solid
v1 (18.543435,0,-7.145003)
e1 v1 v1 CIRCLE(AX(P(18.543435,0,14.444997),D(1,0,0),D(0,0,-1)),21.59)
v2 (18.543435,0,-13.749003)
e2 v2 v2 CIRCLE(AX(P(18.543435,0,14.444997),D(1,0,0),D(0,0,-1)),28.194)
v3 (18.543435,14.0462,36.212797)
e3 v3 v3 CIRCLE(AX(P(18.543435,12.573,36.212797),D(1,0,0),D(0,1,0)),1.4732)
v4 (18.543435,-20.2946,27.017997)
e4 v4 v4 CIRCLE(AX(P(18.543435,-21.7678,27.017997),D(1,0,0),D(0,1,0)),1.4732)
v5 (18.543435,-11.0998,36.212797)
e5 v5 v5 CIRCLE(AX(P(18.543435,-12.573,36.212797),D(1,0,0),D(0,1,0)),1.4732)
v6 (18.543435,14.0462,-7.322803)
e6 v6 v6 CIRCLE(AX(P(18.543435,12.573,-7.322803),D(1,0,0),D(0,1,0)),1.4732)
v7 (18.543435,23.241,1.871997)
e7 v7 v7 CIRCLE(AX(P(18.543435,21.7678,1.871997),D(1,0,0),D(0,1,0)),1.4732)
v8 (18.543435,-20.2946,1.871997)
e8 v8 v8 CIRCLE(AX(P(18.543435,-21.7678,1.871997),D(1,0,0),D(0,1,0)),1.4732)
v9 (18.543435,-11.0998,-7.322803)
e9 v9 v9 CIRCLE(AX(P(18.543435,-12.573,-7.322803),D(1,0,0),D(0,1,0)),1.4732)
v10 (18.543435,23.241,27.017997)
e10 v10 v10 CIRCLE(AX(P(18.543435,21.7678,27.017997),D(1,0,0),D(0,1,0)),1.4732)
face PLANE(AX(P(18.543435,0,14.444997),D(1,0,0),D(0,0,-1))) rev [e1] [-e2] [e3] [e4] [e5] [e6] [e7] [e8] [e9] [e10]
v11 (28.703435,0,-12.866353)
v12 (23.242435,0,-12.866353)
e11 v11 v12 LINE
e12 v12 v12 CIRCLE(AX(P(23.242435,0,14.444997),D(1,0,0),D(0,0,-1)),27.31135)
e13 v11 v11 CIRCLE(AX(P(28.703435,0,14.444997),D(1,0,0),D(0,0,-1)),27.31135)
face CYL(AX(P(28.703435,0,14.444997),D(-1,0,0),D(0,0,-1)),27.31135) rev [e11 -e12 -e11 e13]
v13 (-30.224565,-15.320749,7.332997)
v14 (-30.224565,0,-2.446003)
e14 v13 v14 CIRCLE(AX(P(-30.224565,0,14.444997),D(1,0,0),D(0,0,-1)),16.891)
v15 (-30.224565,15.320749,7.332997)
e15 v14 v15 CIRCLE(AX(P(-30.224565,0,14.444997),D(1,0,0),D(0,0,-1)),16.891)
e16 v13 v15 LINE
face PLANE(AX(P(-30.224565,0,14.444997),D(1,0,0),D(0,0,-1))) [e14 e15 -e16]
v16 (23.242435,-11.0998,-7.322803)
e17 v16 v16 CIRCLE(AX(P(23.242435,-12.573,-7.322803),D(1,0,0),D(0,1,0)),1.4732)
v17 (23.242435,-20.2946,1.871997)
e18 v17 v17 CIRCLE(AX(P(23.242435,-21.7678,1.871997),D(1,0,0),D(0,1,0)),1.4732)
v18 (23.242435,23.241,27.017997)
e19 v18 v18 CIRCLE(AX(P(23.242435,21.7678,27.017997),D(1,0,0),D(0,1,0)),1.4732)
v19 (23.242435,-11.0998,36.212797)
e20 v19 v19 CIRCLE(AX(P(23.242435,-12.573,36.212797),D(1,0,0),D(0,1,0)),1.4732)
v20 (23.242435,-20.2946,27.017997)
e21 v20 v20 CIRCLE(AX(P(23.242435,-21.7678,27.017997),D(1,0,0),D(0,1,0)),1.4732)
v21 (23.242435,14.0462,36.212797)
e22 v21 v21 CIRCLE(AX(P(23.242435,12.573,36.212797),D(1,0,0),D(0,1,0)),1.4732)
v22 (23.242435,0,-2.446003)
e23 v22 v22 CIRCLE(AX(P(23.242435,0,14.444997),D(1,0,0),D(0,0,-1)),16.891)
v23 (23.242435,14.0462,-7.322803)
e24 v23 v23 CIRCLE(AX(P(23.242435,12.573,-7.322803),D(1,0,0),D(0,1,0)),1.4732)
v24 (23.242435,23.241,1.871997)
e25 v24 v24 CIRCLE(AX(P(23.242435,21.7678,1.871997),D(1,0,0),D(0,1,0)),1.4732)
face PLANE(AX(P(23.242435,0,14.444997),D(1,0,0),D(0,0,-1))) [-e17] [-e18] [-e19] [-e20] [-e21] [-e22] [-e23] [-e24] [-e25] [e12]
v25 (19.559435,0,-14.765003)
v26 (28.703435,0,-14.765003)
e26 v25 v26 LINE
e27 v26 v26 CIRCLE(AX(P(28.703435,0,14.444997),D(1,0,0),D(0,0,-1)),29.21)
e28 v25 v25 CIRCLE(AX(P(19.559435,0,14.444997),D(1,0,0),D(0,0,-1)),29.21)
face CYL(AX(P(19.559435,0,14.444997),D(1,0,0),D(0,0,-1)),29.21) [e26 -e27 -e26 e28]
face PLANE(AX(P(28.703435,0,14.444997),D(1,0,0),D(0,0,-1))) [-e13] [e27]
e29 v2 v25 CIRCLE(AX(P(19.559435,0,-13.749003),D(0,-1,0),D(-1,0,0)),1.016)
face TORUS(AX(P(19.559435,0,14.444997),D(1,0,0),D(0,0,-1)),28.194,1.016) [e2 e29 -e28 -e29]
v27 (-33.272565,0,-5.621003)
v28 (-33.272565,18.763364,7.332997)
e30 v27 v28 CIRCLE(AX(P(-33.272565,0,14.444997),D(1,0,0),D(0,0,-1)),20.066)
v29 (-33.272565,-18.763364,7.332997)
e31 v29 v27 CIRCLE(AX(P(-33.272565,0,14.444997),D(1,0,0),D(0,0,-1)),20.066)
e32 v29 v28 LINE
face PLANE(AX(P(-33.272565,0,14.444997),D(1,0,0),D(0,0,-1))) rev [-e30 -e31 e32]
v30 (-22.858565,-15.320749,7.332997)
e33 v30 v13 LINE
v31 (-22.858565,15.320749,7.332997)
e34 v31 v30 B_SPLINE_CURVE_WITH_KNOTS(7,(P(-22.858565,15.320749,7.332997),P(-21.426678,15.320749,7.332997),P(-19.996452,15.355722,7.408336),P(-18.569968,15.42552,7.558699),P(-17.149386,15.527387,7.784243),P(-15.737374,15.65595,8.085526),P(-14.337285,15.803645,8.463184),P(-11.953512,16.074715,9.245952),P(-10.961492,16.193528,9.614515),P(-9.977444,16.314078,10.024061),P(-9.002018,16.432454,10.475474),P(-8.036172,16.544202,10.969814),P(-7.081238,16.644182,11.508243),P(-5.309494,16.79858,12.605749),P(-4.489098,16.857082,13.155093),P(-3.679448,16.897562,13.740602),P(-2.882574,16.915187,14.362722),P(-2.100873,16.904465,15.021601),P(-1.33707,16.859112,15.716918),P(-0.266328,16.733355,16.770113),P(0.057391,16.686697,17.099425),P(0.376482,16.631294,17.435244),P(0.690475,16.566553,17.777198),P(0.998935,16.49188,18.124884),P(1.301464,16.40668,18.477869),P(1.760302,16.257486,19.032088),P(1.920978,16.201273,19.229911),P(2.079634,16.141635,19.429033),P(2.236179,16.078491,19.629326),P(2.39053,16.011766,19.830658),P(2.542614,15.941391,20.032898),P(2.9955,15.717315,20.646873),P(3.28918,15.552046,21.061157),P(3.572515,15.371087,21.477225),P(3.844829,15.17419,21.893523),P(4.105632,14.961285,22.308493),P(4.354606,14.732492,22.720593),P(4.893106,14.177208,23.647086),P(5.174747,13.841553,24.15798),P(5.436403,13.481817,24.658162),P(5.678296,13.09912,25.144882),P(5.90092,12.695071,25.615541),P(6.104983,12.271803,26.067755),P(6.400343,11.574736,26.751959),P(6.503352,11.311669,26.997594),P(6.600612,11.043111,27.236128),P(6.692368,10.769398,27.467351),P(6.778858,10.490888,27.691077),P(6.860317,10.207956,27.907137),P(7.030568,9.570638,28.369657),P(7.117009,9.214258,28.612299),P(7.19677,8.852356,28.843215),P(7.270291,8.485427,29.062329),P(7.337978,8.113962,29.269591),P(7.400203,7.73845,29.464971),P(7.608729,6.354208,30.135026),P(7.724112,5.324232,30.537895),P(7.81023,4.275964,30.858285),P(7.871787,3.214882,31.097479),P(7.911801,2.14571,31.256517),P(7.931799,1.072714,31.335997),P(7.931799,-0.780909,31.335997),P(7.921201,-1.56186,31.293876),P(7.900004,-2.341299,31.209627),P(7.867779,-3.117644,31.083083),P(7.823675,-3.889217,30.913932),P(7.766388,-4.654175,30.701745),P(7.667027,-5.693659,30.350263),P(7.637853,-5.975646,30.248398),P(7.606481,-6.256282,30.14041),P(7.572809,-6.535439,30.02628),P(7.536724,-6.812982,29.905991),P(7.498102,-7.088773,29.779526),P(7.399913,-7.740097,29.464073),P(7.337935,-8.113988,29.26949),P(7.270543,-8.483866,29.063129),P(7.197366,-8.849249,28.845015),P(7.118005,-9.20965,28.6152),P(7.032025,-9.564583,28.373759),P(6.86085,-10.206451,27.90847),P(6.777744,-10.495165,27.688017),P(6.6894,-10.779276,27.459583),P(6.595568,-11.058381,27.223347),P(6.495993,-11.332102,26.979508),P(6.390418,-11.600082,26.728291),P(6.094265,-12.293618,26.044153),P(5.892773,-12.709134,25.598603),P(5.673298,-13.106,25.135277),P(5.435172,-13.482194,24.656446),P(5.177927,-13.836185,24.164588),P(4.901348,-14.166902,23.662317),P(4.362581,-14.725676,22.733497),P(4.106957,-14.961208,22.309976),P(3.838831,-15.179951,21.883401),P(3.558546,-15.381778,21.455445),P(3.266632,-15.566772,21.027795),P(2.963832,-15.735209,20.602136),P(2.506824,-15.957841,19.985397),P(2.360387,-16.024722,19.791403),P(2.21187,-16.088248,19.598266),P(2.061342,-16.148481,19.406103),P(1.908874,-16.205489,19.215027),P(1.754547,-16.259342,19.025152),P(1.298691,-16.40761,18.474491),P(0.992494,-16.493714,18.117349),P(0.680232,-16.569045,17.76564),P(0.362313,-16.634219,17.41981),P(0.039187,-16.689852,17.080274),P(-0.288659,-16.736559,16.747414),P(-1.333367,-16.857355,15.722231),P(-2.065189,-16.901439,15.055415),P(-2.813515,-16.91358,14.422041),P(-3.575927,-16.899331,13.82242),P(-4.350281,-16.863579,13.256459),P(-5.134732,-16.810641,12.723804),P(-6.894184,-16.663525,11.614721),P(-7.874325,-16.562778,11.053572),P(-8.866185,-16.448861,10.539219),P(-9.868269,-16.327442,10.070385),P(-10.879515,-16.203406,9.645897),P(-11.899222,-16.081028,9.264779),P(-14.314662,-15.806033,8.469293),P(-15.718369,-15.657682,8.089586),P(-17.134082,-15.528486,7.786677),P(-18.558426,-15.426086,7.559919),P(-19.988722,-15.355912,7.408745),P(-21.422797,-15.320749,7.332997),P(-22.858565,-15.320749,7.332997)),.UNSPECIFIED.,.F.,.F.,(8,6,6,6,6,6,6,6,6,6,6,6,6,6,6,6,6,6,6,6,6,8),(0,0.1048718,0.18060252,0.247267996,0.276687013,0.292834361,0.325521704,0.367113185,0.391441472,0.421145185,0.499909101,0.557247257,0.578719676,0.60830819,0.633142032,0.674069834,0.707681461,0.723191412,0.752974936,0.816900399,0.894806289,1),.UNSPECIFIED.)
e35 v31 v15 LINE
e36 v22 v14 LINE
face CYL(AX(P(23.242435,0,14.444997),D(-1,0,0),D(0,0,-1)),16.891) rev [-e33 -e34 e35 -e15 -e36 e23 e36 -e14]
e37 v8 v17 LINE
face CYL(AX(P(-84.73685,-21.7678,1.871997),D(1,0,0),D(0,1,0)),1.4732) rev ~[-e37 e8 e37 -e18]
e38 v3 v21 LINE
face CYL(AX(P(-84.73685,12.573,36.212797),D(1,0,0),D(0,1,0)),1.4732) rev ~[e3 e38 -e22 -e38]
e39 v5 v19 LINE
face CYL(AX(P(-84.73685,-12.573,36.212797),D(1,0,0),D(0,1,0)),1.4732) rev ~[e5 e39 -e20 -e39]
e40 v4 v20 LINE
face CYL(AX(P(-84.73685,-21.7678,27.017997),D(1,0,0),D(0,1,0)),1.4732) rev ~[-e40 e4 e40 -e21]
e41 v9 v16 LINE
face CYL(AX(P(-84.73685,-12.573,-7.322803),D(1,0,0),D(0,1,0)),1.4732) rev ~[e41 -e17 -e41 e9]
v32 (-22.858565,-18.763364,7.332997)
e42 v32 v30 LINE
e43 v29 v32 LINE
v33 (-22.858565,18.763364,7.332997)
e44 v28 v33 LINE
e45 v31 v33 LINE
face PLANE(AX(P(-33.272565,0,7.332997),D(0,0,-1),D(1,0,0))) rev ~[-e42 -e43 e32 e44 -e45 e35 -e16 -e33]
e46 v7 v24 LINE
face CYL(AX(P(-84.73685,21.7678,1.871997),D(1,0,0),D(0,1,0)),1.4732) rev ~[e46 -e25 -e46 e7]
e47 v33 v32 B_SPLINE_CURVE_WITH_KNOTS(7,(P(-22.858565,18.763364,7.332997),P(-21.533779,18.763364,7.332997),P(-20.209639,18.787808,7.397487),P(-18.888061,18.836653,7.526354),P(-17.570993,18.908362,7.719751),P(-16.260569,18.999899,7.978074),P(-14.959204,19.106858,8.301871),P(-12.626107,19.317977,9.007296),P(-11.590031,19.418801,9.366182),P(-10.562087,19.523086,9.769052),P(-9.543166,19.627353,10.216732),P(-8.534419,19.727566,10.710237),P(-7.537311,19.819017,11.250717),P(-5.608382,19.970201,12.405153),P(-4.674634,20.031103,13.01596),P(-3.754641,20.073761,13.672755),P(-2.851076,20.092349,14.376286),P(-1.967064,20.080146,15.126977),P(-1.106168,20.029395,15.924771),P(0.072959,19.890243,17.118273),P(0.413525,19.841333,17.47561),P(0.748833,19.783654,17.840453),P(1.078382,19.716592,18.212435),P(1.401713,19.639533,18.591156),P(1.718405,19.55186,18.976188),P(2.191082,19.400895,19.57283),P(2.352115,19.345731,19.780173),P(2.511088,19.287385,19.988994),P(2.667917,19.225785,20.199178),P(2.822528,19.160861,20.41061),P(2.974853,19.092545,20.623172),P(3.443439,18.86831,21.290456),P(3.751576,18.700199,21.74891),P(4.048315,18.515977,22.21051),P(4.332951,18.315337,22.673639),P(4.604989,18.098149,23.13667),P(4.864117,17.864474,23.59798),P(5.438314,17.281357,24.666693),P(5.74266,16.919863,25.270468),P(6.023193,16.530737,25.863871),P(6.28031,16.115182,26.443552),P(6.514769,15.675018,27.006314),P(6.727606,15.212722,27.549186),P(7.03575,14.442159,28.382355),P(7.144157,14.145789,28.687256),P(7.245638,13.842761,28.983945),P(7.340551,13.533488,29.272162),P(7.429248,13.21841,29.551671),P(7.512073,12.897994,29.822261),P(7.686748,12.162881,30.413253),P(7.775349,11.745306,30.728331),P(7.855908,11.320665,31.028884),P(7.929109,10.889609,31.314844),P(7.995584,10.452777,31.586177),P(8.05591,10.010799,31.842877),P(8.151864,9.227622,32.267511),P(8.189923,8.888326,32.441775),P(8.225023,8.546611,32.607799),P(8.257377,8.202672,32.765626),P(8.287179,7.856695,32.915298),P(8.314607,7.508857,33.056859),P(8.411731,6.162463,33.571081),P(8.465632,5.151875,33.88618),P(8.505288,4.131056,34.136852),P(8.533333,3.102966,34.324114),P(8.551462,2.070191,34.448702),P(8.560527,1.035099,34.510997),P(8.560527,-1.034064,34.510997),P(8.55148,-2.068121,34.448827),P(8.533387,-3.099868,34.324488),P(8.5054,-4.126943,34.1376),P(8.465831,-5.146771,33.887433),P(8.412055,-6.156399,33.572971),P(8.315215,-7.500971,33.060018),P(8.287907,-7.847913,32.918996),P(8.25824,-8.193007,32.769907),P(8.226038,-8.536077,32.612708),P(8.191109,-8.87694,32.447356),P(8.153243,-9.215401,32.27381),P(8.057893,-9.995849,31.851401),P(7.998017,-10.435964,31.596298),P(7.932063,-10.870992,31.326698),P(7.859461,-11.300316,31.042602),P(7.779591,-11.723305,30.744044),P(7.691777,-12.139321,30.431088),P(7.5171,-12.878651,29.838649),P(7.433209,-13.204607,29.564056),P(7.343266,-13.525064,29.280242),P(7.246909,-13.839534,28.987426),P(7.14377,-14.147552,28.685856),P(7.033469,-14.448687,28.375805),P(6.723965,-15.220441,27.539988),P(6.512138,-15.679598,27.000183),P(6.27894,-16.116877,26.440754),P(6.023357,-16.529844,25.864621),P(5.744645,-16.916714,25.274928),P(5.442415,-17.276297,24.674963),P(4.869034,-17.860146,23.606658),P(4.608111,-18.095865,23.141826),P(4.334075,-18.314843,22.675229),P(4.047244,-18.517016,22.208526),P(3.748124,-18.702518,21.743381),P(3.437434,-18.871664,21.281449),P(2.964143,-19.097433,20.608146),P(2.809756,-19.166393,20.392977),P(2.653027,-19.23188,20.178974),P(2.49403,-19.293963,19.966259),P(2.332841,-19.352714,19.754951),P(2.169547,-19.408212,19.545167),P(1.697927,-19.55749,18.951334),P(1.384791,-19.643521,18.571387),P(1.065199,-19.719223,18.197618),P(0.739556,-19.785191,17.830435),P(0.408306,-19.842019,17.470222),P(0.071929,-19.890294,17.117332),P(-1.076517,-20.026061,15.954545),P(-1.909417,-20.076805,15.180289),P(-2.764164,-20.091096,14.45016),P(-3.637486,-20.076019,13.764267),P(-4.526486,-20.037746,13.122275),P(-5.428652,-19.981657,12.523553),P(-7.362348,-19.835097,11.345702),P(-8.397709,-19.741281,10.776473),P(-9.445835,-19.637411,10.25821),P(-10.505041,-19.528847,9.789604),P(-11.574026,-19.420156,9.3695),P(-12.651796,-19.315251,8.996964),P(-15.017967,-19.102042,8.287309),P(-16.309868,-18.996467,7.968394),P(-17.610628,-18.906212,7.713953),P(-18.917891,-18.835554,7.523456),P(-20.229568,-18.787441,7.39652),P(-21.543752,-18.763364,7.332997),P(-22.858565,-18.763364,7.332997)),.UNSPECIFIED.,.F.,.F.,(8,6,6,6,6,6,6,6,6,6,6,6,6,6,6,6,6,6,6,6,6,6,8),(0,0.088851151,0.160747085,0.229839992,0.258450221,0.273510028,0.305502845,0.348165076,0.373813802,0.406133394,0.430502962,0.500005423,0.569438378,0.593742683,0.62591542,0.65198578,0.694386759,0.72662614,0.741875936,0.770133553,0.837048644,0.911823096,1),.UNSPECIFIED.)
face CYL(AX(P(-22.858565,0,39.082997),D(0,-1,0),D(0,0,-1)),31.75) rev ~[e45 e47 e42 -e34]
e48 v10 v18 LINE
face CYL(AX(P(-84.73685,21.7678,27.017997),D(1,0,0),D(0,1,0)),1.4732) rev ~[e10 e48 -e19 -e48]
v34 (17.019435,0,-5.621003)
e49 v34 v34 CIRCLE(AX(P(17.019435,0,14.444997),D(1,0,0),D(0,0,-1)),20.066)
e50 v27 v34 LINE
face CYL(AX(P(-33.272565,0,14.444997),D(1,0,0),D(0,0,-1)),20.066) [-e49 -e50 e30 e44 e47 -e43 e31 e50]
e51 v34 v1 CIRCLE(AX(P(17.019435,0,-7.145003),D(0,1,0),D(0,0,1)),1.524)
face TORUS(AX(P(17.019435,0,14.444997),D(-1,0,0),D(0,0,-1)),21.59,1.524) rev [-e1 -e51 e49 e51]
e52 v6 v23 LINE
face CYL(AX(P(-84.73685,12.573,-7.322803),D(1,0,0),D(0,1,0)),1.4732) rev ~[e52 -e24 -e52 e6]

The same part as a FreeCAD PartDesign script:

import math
import FreeCAD as App
import Part
import Sketcher

V = App.Vector
Q = App.Units.Quantity

doc = App.newDocument("Part")
body = doc.addObject("PartDesign::Body", "Body")

# Sketch on XZ plane
sketch1 = doc.addObject("Sketcher::SketchObject", "Sketch")
body.addObject(sketch1)
sketch1.AttachmentSupport = (doc.XZ_Plane, [""])
sketch1.MapMode = "FlatFace"
sketch1.addGeometry(Part.LineSegment(V(-33.3, 12.9, 0), V(-33.3, -5.6, 0)), False)
sketch1.addGeometry(Part.LineSegment(V(-33.3, -5.6, 0), V(17, -5.6, 0)), False)
sketch1.addGeometry(Part.ArcOfCircle(Part.Circle(V(17, -7.1, 0), V(0, 0, 1), 1.5), math.radians(0), math.radians(90)), False)
sketch1.addGeometry(Part.LineSegment(V(18.5, -7.1, 0), V(18.5, -13.7, 0)), False)
sketch1.addGeometry(Part.ArcOfCircle(Part.Circle(V(19.6, -13.7, 0), V(0, 0, 1), 1), math.radians(180), math.radians(270)), False)
sketch1.addGeometry(Part.LineSegment(V(19.6, -14.8, 0), V(28.7, -14.8, 0)), False)
sketch1.addGeometry(Part.LineSegment(V(28.7, -14.8, 0), V(28.7, -12.9, 0)), False)
sketch1.addGeometry(Part.LineSegment(V(28.7, -12.9, 0), V(23.2, -12.9, 0)), False)
sketch1.addGeometry(Part.LineSegment(V(23.2, -12.9, 0), V(23.2, -2.4, 0)), False)
sketch1.addGeometry(Part.LineSegment(V(23.2, -2.4, 0), V(-30.2, -2.4, 0)), False)
sketch1.addGeometry(Part.LineSegment(V(-30.2, -2.4, 0), V(-30.2, 12.9, 0)), False)
sketch1.addGeometry(Part.LineSegment(V(-30.2, 12.9, 0), V(-33.3, 12.9, 0)), False)
sketch1.addGeometry(Part.LineSegment(V(-33.3, 14.4, 0), V(28.7, 14.4, 0)), True)  # axis
sketch1.addConstraint(Sketcher.Constraint("Coincident", 0, 2, 1, 1))
sketch1.addConstraint(Sketcher.Constraint("Tangent", 1, 2, 2, 2))
sketch1.addConstraint(Sketcher.Constraint("Tangent", 2, 1, 3, 1))
sketch1.addConstraint(Sketcher.Constraint("Tangent", 3, 2, 4, 1))
sketch1.addConstraint(Sketcher.Constraint("Tangent", 4, 2, 5, 1))
sketch1.addConstraint(Sketcher.Constraint("Coincident", 5, 2, 6, 1))
sketch1.addConstraint(Sketcher.Constraint("Coincident", 6, 2, 7, 1))
sketch1.addConstraint(Sketcher.Constraint("Coincident", 7, 2, 8, 1))
sketch1.addConstraint(Sketcher.Constraint("Coincident", 8, 2, 9, 1))
sketch1.addConstraint(Sketcher.Constraint("Coincident", 9, 2, 10, 1))
sketch1.addConstraint(Sketcher.Constraint("Coincident", 10, 2, 11, 1))
sketch1.addConstraint(Sketcher.Constraint("Coincident", 11, 2, 0, 1))
sketch1.addConstraint(Sketcher.Constraint("Vertical", 0))
sketch1.addConstraint(Sketcher.Constraint("Horizontal", 1))
sketch1.addConstraint(Sketcher.Constraint("Vertical", 3))
sketch1.addConstraint(Sketcher.Constraint("Horizontal", 5))
sketch1.addConstraint(Sketcher.Constraint("Vertical", 6))
sketch1.addConstraint(Sketcher.Constraint("Horizontal", 7))
sketch1.addConstraint(Sketcher.Constraint("Vertical", 8))
sketch1.addConstraint(Sketcher.Constraint("Horizontal", 9))
sketch1.addConstraint(Sketcher.Constraint("Vertical", 10))
sketch1.addConstraint(Sketcher.Constraint("Horizontal", 11))
sketch1.addConstraint(Sketcher.Constraint("Horizontal", 12))
sketch1.addConstraint(Sketcher.Constraint("Vertical", 11, 2, 12, 1))
sketch1.addConstraint(Sketcher.Constraint("Vertical", 6, 2, 12, 2))
sketch1.addConstraint(Sketcher.Constraint("Radius", 2, Q("0.06 in")))
sketch1.addConstraint(Sketcher.Constraint("Radius", 4, Q("0.04 in")))
sketch1.addConstraint(Sketcher.Constraint("DistanceX", 1, 1, 1, 2, Q("1.98 in")))
sketch1.addConstraint(Sketcher.Constraint("DistanceX", 5, 1, 5, 2, Q("0.36 in")))
sketch1.addConstraint(Sketcher.Constraint("DistanceX", 11, 2, 11, 1, Q("0.12 in")))
sketch1.addConstraint(Sketcher.Constraint("DistanceY", 3, 2, 3, 1, Q("0.26 in")))
sketch1.addConstraint(Sketcher.Constraint("DistanceX", 7, 2, 7, 1, Q("0.215 in")))
sketch1.addConstraint(Sketcher.Constraint("DistanceY", 0, 2, 12, 1, Q("0.79 in")))
sketch1.addConstraint(Sketcher.Constraint("DistanceY", 2, 1, 8, 2, Q("0.185 in")))
sketch1.addConstraint(Sketcher.Constraint("DistanceY", 6, 1, 6, 2, 1.89865))
sketch1.addConstraint(Sketcher.Constraint("DistanceY", 0, 2, 0, 1, 18.539563))
sketch1.addConstraint(Sketcher.Constraint("DistanceY", -1, 1, 10, 2, 12.918559))
sketch1.addConstraint(Sketcher.Constraint("DistanceX", -1, 1, 2, 3, 17.019435))
revolution = doc.addObject("PartDesign::Revolution", "Revolution")
body.addObject(revolution)
revolution.Profile = sketch1
revolution.ReferenceAxis = (sketch1, ["Axis0"])
revolution.Angle = 360

# Sketch on XZ plane
sketch2 = doc.addObject("Sketcher::SketchObject", "Sketch001")
body.addObject(sketch2)
sketch2.AttachmentSupport = (doc.XZ_Plane, [""])
sketch2.MapMode = "FlatFace"
sketch2.addGeometry(Part.LineSegment(V(8.9, 39.1, 0), V(8.9, 42.1, 0)), False)
sketch2.addGeometry(Part.LineSegment(V(8.9, 42.1, 0), V(-33.3, 42.1, 0)), False)
sketch2.addGeometry(Part.LineSegment(V(-33.3, 42.1, 0), V(-33.3, 7.3, 0)), False)
sketch2.addGeometry(Part.LineSegment(V(-33.3, 7.3, 0), V(-22.9, 7.3, 0)), False)
sketch2.addGeometry(Part.ArcOfCircle(Part.Circle(V(-22.9, 39.1, 0), V(0, 0, 1), 31.8), math.radians(-90), math.radians(0)), False)
sketch2.addConstraint(Sketcher.Constraint("Coincident", 0, 2, 1, 1))
sketch2.addConstraint(Sketcher.Constraint("Coincident", 1, 2, 2, 1))
sketch2.addConstraint(Sketcher.Constraint("Coincident", 2, 2, 3, 1))
sketch2.addConstraint(Sketcher.Constraint("Tangent", 3, 2, 4, 1))
sketch2.addConstraint(Sketcher.Constraint("Tangent", 4, 2, 0, 1))
sketch2.addConstraint(Sketcher.Constraint("Vertical", 0))
sketch2.addConstraint(Sketcher.Constraint("Horizontal", 1))
sketch2.addConstraint(Sketcher.Constraint("Vertical", 2))
sketch2.addConstraint(Sketcher.Constraint("Horizontal", 3))
sketch2.addConstraint(Sketcher.Constraint("Radius", 4, Q("1.25 in")))
sketch2.addConstraint(Sketcher.Constraint("DistanceX", 1, 2, 1, 1, Q("1.66 in")))
sketch2.addConstraint(Sketcher.Constraint("DistanceY", 0, 1, 0, 2, 2.999496))
sketch2.addConstraint(Sketcher.Constraint("DistanceX", 4, 3, -1, 1, 22.858565))
sketch2.addConstraint(Sketcher.Constraint("DistanceY", -1, 1, 4, 3, 39.082997))
pocket1 = doc.addObject("PartDesign::Pocket", "Pocket")
body.addObject(pocket1)
pocket1.Profile = sketch2
pocket1.Length = Q("2.286 in")
pocket1.Midplane = True

# Sketch on YZ plane
sketch3 = doc.addObject("Sketcher::SketchObject", "Sketch002")
body.addObject(sketch3)
sketch3.AttachmentSupport = (doc.YZ_Plane, [""])
sketch3.MapMode = "FlatFace"
sketch3.AttachmentOffset = App.Placement(V(0, 0, 18.543435), App.Rotation())
sketch3.addGeometry(Part.Circle(V(-12.6, 36.2, 0), V(0, 0, 1), 1.5), False)
sketch3.addGeometry(Part.Circle(V(-21.8, 27, 0), V(0, 0, 1), 1.5), False)
sketch3.addGeometry(Part.Circle(V(12.6, 36.2, 0), V(0, 0, 1), 1.5), False)
sketch3.addGeometry(Part.Circle(V(21.8, 27, 0), V(0, 0, 1), 1.5), False)
sketch3.addGeometry(Part.Circle(V(-21.8, 1.9, 0), V(0, 0, 1), 1.5), False)
sketch3.addGeometry(Part.Circle(V(-12.6, -7.3, 0), V(0, 0, 1), 1.5), False)
sketch3.addGeometry(Part.Circle(V(12.6, -7.3, 0), V(0, 0, 1), 1.5), False)
sketch3.addGeometry(Part.Circle(V(21.8, 1.9, 0), V(0, 0, 1), 1.5), False)
sketch3.addConstraint(Sketcher.Constraint("Equal", 0, 1))
sketch3.addConstraint(Sketcher.Constraint("Equal", 1, 2))
sketch3.addConstraint(Sketcher.Constraint("Equal", 2, 3))
sketch3.addConstraint(Sketcher.Constraint("Equal", 3, 4))
sketch3.addConstraint(Sketcher.Constraint("Equal", 4, 5))
sketch3.addConstraint(Sketcher.Constraint("Equal", 5, 6))
sketch3.addConstraint(Sketcher.Constraint("Equal", 6, 7))
sketch3.addConstraint(Sketcher.Constraint("Symmetric", 0, 3, 2, 3, -2))
sketch3.addConstraint(Sketcher.Constraint("Symmetric", 1, 3, 3, 3, -2))
sketch3.addConstraint(Sketcher.Constraint("Symmetric", 5, 3, 6, 3, -2))
sketch3.addConstraint(Sketcher.Constraint("Symmetric", 4, 3, 7, 3, -2))
sketch3.addConstraint(Sketcher.Constraint("Vertical", 1, 3, 4, 3))
sketch3.addConstraint(Sketcher.Constraint("Vertical", 0, 3, 5, 3))
sketch3.addConstraint(Sketcher.Constraint("Diameter", 0, Q("0.116 in")))
sketch3.addConstraint(Sketcher.Constraint("DistanceX", 0, 3, 2, 3, Q("0.99 in")))
sketch3.addConstraint(Sketcher.Constraint("DistanceY", 4, 3, 1, 3, Q("0.99 in")))
sketch3.addConstraint(Sketcher.Constraint("DistanceX", 1, 3, -1, 1, Q("0.857 in")))
sketch3.addConstraint(Sketcher.Constraint("DistanceY", 1, 3, 0, 3, Q("0.362 in")))
sketch3.addConstraint(Sketcher.Constraint("DistanceY", 5, 3, 4, 3, Q("0.362 in")))
sketch3.addConstraint(Sketcher.Constraint("DistanceY", -1, 1, 0, 3, 36.212797))
doc.recompute()
hole = doc.addObject("PartDesign::Hole", "Hole")
body.addObject(hole)
hole.Profile = sketch3
hole.ThreadType = "None"
hole.Diameter = Q("0.116 in")
hole.DepthType = "ThroughAll"
hole.Reversed = True

doc.recompute()
